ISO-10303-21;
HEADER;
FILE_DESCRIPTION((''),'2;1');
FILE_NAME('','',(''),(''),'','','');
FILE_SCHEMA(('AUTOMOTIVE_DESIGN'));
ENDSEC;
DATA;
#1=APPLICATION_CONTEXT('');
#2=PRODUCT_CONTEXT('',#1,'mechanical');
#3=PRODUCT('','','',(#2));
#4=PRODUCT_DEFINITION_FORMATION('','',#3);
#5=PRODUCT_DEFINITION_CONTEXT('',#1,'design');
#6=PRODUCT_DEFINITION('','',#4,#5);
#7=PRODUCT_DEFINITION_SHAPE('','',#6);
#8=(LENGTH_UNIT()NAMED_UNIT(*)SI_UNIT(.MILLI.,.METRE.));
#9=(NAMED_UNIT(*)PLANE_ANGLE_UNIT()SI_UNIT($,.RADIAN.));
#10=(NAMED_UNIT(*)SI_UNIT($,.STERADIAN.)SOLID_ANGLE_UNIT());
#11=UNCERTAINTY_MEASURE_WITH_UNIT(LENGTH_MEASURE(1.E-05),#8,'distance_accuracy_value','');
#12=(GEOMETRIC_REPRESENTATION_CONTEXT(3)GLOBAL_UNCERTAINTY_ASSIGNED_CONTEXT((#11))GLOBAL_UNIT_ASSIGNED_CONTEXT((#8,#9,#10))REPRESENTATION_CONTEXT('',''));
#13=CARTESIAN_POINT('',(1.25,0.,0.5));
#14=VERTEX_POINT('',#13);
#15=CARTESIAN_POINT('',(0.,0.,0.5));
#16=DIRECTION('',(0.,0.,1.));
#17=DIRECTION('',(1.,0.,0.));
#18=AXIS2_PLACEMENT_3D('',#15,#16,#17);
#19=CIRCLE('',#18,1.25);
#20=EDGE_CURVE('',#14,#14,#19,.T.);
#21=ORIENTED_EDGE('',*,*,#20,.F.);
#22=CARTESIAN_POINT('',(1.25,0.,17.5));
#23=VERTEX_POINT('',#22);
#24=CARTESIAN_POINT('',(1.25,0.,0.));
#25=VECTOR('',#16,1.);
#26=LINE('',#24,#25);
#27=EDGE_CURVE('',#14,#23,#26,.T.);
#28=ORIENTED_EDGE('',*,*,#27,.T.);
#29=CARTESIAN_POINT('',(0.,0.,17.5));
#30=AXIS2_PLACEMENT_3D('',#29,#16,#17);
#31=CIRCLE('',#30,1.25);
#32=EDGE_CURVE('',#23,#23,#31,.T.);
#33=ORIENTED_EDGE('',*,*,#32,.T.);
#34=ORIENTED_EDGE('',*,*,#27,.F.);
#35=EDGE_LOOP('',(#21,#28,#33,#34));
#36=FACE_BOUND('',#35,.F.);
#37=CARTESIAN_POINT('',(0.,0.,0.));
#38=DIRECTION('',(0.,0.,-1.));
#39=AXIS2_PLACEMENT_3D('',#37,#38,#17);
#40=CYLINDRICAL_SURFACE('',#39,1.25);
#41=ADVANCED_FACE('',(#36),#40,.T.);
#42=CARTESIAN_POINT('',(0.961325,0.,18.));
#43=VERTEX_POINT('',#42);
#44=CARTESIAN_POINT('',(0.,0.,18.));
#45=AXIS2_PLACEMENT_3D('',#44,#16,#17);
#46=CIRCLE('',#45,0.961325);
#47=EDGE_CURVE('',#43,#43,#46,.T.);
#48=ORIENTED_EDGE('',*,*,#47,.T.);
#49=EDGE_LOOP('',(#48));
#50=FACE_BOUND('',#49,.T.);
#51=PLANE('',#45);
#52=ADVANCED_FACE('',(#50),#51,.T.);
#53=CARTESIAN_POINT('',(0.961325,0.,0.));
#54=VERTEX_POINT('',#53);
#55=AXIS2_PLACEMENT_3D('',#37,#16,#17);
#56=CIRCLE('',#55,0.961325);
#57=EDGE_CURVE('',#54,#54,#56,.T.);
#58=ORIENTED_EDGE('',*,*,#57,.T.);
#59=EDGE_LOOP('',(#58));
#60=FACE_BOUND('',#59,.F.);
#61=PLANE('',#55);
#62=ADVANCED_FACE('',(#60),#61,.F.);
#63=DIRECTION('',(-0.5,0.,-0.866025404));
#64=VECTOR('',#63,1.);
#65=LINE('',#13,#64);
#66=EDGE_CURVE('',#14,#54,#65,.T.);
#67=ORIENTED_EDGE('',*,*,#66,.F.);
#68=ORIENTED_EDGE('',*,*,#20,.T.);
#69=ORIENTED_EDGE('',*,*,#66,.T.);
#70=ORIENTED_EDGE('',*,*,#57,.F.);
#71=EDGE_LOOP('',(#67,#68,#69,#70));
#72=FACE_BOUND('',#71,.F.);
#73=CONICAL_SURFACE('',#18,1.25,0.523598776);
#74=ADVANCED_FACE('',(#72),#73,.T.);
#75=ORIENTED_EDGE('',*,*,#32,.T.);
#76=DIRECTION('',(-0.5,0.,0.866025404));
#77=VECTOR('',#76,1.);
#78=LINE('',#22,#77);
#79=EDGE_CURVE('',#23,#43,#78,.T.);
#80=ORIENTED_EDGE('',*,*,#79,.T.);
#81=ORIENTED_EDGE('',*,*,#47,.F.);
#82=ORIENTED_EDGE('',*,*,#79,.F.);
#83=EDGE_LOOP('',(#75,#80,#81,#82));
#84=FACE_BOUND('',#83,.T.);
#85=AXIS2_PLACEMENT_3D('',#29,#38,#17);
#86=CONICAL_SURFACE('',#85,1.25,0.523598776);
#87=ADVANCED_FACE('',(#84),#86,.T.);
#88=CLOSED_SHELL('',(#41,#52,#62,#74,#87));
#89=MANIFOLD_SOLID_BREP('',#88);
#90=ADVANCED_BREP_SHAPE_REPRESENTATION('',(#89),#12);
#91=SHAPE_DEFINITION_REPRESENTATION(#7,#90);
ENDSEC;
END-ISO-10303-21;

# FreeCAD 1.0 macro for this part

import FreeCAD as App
import Part
import Sketcher


def edges_at(feature, points):
    """Names of the edges that pass closest to the given points."""
    edges = feature.Shape.Edges
    near = lambda p: min(range(len(edges)), key=lambda i: edges[i].distToShape(Part.Vertex(*p))[0])
    return sorted({f"Edge{near(p) + 1}" for p in points})

doc = App.newDocument("Part")
body = doc.addObject("PartDesign::Body", "Body")

# Sketch on XY plane
sketch1 = body.newObject("Sketcher::SketchObject", "Sketch")
sketch1.AttachmentSupport = (doc.getObject("XY_Plane"), [""])
sketch1.MapMode = "FlatFace"
sketch1.addGeometry(Part.Circle(App.Vector(0, 0, 0), App.Vector(0, 0, 1), 1.25), False)
sketch1.addConstraint([
    Sketcher.Constraint("Coincident", 0, 3, -1, 1),
    Sketcher.Constraint("Diameter", 0, 2.5),
])
pad1 = body.newObject("PartDesign::Pad", "Pad")
pad1.Profile = sketch1
pad1.Length = 18
doc.recompute()

chamfer = body.newObject("PartDesign::Chamfer", "Chamfer")
chamfer.Base = (pad1, edges_at(pad1, [(-1.25, 0, 18), (-1.25, 0, 0)]))
chamfer.ChamferType = "Distance and Angle"
chamfer.Size = 0.5
chamfer.Angle = 30

doc.recompute()
